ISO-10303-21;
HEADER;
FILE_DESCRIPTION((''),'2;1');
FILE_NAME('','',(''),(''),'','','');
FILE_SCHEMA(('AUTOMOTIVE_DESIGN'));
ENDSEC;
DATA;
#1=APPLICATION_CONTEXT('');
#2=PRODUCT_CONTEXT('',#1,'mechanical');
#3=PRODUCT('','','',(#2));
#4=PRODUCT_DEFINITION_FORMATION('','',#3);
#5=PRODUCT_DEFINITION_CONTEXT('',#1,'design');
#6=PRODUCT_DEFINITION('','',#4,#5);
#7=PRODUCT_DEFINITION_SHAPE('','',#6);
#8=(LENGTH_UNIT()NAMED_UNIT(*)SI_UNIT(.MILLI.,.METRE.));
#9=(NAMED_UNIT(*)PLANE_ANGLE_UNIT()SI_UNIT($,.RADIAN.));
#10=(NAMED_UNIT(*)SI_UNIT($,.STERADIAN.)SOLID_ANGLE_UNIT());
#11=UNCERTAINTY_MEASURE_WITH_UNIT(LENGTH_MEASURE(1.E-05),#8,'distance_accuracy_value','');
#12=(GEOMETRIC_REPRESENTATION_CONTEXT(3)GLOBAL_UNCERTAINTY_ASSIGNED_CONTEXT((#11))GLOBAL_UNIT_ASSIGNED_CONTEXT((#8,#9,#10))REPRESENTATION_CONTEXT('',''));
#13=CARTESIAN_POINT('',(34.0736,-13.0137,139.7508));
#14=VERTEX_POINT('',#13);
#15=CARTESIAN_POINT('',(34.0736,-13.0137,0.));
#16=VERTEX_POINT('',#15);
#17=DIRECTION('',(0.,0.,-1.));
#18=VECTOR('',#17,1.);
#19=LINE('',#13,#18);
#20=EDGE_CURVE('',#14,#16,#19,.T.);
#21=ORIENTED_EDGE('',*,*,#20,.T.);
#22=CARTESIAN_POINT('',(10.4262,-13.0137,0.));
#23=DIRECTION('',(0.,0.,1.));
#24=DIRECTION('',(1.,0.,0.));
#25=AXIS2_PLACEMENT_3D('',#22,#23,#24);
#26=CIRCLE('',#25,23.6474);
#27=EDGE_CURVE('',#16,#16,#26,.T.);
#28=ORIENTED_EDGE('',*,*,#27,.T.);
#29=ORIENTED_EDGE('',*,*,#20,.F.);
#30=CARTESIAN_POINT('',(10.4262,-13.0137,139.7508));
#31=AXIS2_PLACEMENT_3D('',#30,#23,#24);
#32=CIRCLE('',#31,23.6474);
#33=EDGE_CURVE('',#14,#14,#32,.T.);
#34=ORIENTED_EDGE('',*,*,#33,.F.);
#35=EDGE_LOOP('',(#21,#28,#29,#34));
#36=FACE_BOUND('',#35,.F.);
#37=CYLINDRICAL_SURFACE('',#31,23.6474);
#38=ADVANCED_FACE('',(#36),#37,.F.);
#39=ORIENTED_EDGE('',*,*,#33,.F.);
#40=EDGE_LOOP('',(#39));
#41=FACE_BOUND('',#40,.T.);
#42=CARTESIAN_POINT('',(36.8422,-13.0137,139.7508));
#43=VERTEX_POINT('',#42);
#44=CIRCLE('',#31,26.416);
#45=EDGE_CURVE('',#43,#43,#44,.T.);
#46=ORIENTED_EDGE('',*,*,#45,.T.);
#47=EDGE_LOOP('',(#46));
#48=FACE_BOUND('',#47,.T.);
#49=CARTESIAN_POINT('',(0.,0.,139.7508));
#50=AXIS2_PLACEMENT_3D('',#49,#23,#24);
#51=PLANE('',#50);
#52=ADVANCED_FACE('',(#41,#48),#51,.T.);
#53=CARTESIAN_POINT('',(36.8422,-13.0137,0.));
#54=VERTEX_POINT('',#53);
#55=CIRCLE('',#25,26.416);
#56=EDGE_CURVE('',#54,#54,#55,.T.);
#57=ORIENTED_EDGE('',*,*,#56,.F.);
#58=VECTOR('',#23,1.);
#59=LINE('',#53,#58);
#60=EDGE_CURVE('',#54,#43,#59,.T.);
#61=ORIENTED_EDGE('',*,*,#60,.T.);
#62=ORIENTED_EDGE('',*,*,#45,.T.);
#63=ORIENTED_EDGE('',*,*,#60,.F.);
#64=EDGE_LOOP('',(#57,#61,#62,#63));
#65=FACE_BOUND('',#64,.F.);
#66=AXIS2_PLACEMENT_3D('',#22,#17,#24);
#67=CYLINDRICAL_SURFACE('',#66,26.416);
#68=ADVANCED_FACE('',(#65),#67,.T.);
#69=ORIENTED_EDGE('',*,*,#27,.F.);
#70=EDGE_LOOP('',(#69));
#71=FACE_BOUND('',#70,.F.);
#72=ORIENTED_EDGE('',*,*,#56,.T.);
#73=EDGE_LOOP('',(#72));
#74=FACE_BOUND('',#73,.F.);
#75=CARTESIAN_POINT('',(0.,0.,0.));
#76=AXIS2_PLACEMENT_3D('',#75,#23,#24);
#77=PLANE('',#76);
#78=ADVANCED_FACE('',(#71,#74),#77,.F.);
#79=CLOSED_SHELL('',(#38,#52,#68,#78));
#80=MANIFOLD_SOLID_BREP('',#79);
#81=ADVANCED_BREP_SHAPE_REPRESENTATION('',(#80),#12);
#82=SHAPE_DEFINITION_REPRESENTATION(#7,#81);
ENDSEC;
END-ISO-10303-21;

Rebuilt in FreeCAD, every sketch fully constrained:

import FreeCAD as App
import Part
import Sketcher
from FreeCAD import Vector
Q = App.Units.Quantity

doc = App.newDocument("Part")
body = doc.addObject("PartDesign::Body", "Body")

sketch1 = doc.addObject("Sketcher::SketchObject", "Sketch")
body.addObject(sketch1)
sketch1.AttachmentSupport = (doc.XY_Plane, [""])
sketch1.MapMode = "FlatFace"
sketch1.addGeometry(Part.Circle(Vector(10.4262, -13.0137, 0), Vector(0, 0, 1), 26.416), False)
sketch1.addConstraint([
    Sketcher.Constraint("Diameter", 0, Q("2.08 in")),
    Sketcher.Constraint("DistanceX", -1, 1, 0, 3, Q("10.4262 mm")),
    Sketcher.Constraint("DistanceY", 0, 3, -1, 1, Q("13.0137 mm")),
])
pad1 = doc.addObject("PartDesign::Pad", "Pad")
body.addObject(pad1)
pad1.Profile = sketch1
pad1.Length = Q("5.502 in")

sketch2 = doc.addObject("Sketcher::SketchObject", "Sketch001")
body.addObject(sketch2)
sketch2.AttachmentSupport = (doc.XY_Plane, [""])
sketch2.MapMode = "FlatFace"
sketch2.AttachmentOffset = App.Placement(Vector(0, 0, 5.502 * 25.4), App.Rotation())
sketch2.addGeometry(Part.Circle(Vector(10.4262, -13.0137, 0), Vector(0, 0, 1), 23.6474), False)
sketch2.addConstraint([
    Sketcher.Constraint("Diameter", 0, Q("1.862 in")),
    Sketcher.Constraint("DistanceX", -1, 1, 0, 3, Q("10.4262 mm")),
    Sketcher.Constraint("DistanceY", 0, 3, -1, 1, Q("13.0137 mm")),
])
pocket1 = doc.addObject("PartDesign::Pocket", "Pocket")
body.addObject(pocket1)
pocket1.Profile = sketch2
pocket1.Type = "ThroughAll"

doc.recompute()
